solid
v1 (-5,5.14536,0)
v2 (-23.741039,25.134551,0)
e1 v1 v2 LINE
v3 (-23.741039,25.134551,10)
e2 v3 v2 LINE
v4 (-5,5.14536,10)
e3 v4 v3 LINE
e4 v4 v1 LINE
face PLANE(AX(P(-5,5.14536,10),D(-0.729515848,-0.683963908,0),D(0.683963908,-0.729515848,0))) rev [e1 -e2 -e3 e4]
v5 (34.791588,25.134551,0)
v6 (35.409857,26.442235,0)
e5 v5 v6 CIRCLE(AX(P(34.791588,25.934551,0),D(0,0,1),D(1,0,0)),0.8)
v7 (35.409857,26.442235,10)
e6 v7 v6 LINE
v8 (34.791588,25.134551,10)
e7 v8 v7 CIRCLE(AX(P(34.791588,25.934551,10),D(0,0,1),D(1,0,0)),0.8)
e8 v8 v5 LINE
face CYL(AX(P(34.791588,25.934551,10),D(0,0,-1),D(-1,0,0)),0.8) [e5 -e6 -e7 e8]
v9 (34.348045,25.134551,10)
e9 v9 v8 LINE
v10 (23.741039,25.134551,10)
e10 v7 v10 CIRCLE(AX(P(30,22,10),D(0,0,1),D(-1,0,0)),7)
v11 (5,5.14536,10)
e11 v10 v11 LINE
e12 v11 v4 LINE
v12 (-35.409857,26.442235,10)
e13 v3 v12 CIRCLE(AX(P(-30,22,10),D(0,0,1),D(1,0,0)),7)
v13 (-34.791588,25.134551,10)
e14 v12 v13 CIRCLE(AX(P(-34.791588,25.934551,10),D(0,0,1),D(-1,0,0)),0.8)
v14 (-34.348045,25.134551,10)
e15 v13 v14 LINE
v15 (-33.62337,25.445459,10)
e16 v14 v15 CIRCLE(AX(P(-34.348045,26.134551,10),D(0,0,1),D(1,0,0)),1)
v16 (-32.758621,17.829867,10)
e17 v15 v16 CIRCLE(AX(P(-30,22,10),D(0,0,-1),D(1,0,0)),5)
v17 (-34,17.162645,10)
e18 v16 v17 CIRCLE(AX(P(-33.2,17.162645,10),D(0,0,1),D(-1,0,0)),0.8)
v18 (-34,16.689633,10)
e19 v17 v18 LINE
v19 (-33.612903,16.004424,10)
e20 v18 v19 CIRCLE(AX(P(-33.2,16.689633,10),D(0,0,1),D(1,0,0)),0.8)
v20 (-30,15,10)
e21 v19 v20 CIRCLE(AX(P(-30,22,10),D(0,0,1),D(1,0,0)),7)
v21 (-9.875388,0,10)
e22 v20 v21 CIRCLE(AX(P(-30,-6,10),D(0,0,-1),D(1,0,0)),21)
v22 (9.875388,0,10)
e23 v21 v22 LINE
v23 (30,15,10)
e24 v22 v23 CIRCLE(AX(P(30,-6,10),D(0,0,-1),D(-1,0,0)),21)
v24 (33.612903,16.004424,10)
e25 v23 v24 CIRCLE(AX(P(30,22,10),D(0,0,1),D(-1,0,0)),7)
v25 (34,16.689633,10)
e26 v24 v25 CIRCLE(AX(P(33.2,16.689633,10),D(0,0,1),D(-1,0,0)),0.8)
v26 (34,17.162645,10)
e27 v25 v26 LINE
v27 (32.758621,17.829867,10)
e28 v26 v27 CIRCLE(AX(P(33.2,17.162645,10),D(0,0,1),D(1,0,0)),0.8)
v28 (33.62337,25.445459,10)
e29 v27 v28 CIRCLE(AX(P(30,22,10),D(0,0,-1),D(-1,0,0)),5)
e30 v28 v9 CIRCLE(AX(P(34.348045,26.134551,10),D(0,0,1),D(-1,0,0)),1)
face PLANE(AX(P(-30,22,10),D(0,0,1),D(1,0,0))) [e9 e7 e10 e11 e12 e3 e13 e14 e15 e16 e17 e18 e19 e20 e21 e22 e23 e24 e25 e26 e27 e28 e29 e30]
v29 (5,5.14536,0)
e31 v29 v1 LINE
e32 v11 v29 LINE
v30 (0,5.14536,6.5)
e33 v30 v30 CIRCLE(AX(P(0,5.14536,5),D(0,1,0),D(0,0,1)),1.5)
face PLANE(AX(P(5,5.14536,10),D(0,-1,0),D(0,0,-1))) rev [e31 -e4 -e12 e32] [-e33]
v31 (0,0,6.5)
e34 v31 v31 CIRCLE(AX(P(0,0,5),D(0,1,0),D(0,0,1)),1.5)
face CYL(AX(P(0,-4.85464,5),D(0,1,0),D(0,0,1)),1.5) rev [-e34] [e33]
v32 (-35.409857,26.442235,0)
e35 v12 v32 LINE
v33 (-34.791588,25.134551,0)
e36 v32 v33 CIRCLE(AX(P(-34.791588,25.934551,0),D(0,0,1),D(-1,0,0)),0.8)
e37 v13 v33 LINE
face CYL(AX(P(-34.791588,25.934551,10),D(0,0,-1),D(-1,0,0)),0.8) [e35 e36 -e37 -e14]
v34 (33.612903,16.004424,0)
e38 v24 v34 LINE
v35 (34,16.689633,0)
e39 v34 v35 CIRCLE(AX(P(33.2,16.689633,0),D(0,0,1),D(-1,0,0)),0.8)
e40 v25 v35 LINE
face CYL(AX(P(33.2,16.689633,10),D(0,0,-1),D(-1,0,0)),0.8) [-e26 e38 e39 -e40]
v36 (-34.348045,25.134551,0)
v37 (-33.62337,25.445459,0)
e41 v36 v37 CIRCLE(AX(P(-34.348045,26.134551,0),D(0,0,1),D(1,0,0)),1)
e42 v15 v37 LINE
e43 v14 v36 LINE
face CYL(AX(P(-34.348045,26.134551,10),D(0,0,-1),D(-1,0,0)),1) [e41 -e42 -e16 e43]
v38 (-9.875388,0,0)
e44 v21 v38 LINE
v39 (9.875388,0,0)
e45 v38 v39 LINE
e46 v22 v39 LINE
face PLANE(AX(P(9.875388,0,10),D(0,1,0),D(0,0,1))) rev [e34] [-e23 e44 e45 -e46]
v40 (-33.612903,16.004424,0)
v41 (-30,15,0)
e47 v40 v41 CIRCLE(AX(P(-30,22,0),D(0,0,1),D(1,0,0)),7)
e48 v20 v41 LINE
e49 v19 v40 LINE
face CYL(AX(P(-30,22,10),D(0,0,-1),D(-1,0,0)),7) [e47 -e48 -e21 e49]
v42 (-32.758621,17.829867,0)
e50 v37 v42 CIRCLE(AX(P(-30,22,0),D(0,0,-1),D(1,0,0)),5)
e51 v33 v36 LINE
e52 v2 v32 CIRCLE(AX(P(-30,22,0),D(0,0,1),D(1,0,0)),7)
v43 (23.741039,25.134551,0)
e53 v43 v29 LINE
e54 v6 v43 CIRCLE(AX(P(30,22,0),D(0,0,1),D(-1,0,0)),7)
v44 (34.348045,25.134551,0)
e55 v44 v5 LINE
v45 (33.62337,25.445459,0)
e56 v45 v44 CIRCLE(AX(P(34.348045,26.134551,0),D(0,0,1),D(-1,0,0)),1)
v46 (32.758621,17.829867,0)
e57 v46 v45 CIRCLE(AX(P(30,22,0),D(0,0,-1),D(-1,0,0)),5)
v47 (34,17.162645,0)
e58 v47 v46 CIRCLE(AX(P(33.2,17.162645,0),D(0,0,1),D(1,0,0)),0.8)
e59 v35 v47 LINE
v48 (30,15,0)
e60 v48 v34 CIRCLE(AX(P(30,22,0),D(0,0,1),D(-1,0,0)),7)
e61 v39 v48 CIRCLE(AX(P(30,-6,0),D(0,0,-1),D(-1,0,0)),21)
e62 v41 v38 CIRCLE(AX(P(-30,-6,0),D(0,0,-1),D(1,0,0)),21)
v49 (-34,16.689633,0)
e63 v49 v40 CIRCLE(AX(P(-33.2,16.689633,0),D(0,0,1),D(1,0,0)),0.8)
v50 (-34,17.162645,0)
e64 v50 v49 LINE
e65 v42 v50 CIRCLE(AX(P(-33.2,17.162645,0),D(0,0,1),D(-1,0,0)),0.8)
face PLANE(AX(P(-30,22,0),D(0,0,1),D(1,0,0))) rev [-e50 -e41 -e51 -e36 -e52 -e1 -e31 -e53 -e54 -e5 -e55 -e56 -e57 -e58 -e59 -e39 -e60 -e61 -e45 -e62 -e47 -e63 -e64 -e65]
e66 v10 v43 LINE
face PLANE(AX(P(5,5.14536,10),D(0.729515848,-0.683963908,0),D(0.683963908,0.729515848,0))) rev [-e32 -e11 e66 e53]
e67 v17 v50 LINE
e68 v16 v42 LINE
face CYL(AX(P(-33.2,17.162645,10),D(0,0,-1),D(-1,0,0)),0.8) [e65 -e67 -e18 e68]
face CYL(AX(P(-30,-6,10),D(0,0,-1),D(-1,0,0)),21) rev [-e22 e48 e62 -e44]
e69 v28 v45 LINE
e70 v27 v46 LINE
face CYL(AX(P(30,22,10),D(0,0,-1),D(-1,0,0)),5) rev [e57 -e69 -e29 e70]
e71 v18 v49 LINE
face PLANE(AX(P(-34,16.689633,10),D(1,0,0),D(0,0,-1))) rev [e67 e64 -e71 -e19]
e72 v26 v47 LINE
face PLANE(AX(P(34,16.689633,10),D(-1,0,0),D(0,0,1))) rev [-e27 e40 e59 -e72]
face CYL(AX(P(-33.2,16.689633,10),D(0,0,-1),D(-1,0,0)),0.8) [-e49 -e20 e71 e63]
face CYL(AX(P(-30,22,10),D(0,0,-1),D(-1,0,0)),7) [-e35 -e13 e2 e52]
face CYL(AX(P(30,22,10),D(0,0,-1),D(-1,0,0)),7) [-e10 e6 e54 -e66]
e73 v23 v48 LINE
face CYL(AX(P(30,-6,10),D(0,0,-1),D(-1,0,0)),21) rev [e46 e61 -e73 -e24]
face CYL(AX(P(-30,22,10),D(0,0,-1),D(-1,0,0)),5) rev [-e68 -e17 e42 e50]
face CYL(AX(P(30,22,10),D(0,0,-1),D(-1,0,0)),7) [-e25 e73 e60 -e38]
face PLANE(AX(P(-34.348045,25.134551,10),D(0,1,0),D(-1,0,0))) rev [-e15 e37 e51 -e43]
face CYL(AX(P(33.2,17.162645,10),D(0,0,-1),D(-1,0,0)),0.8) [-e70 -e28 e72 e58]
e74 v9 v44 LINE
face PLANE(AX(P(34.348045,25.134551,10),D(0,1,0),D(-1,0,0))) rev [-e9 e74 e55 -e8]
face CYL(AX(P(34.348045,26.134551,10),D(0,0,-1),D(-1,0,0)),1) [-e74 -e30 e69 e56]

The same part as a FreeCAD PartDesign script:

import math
import FreeCAD as App
import Part
import Sketcher

V = App.Vector
Q = App.Units.Quantity

doc = App.newDocument("Part")
body = doc.addObject("PartDesign::Body", "Body")

sketch1 = body.newObject("Sketcher::SketchObject", "Sketch")
sketch1.AttachmentSupport = (doc.getObject("XY_Plane"), [""])
sketch1.MapMode = "FlatFace"
sketch1.addGeometry([
    Part.LineSegment(V(-9.875388, 0, 0), V(9.875388, 0, 0)),
    Part.ArcOfCircle(Part.Circle(V(30, -6, 0), V(0, 0, 1), 21), math.radians(90), math.radians(163.39845)),
    Part.ArcOfCircle(Part.Circle(V(30, 22, 0), V(0, 0, 1), 7), math.radians(-90), math.radians(-58.927049)),
    Part.ArcOfCircle(Part.Circle(V(33.2, 16.689633, 0), V(0, 0, 1), 0.8), math.radians(-58.927049), math.radians(0)),
    Part.LineSegment(V(34, 16.689633, 0), V(34, 17.162645, 0)),
    Part.ArcOfCircle(Part.Circle(V(33.2, 17.162645, 0), V(0, 0, 1), 0.8), math.radians(0), math.radians(123.485377)),
    Part.ArcOfCircle(Part.Circle(V(30, 22, 0), V(0, 0, 1), 5), math.radians(43.558257), math.radians(303.485377)),
    Part.ArcOfCircle(Part.Circle(V(34.348045, 26.134551, 0), V(0, 0, 1), 1), math.radians(-136.441743), math.radians(-90)),
    Part.LineSegment(V(34.348045, 25.134551, 0), V(34.791588, 25.134551, 0)),
    Part.ArcOfCircle(Part.Circle(V(34.791588, 25.934551, 0), V(0, 0, 1), 0.8), math.radians(-90), math.radians(39.390689)),
    Part.ArcOfCircle(Part.Circle(V(30, 22, 0), V(0, 0, 1), 7), math.radians(39.390689), math.radians(153.397831)),
    Part.LineSegment(V(23.741039, 25.134551, 0), V(5, 5.14536, 0)),
    Part.LineSegment(V(5, 5.14536, 0), V(-5, 5.14536, 0)),
    Part.LineSegment(V(-5, 5.14536, 0), V(-23.741039, 25.134551, 0)),
    Part.ArcOfCircle(Part.Circle(V(-30, 22, 0), V(0, 0, 1), 7), math.radians(26.602169), math.radians(140.609311)),
    Part.ArcOfCircle(Part.Circle(V(-34.791588, 25.934551, 0), V(0, 0, 1), 0.8), math.radians(140.609311), math.radians(270)),
    Part.LineSegment(V(-34.791588, 25.134551, 0), V(-34.348045, 25.134551, 0)),
    Part.ArcOfCircle(Part.Circle(V(-34.348045, 26.134551, 0), V(0, 0, 1), 1), math.radians(-90), math.radians(-43.558257)),
    Part.ArcOfCircle(Part.Circle(V(-30, 22, 0), V(0, 0, 1), 5), math.radians(-123.485377), math.radians(136.441743)),
    Part.ArcOfCircle(Part.Circle(V(-33.2, 17.162645, 0), V(0, 0, 1), 0.8), math.radians(56.514623), math.radians(180)),
    Part.LineSegment(V(-34, 17.162645, 0), V(-34, 16.689633, 0)),
    Part.ArcOfCircle(Part.Circle(V(-33.2, 16.689633, 0), V(0, 0, 1), 0.8), math.radians(180), math.radians(238.927049)),
    Part.ArcOfCircle(Part.Circle(V(-30, 22, 0), V(0, 0, 1), 7), math.radians(-121.072951), math.radians(-90)),
    Part.ArcOfCircle(Part.Circle(V(-30, -6, 0), V(0, 0, 1), 21), math.radians(16.60155), math.radians(90)),
], False)
sketch1.addConstraint([
    Sketcher.Constraint("Coincident", 0, 2, 1, 2),
    Sketcher.Constraint("Tangent", 1, 1, 2, 1),
    Sketcher.Constraint("Tangent", 2, 2, 3, 1),
    Sketcher.Constraint("Tangent", 3, 2, 4, 1),
    Sketcher.Constraint("Tangent", 4, 2, 5, 1),
    Sketcher.Constraint("Tangent", 5, 2, 6, 2),
    Sketcher.Constraint("Tangent", 6, 1, 7, 1),
    Sketcher.Constraint("Tangent", 7, 2, 8, 1),
    Sketcher.Constraint("Tangent", 8, 2, 9, 1),
    Sketcher.Constraint("Tangent", 9, 2, 10, 1),
    Sketcher.Constraint("Coincident", 10, 2, 11, 1),
    Sketcher.Constraint("Coincident", 11, 2, 12, 1),
    Sketcher.Constraint("Coincident", 12, 2, 13, 1),
    Sketcher.Constraint("Coincident", 13, 2, 14, 1),
    Sketcher.Constraint("Tangent", 14, 2, 15, 1),
    Sketcher.Constraint("Tangent", 15, 2, 16, 1),
    Sketcher.Constraint("Tangent", 16, 2, 17, 1),
    Sketcher.Constraint("Tangent", 17, 2, 18, 2),
    Sketcher.Constraint("Tangent", 18, 1, 19, 1),
    Sketcher.Constraint("Tangent", 19, 2, 20, 1),
    Sketcher.Constraint("Tangent", 20, 2, 21, 1),
    Sketcher.Constraint("Tangent", 21, 2, 22, 1),
    Sketcher.Constraint("Tangent", 22, 2, 23, 2),
    Sketcher.Constraint("Coincident", 23, 1, 0, 1),
    Sketcher.Constraint("Horizontal", 0),
    Sketcher.Constraint("Vertical", 4),
    Sketcher.Constraint("Horizontal", 8),
    Sketcher.Constraint("Horizontal", 12),
    Sketcher.Constraint("Horizontal", 16),
    Sketcher.Constraint("Vertical", 20),
    Sketcher.Constraint("Coincident", 6, 3, 2, 3),
    Sketcher.Constraint("Coincident", 10, 3, 2, 3),
    Sketcher.Constraint("Coincident", 18, 3, 14, 3),
    Sketcher.Constraint("Coincident", 22, 3, 14, 3),
    Sketcher.Constraint("Equal", 3, 5),
    Sketcher.Constraint("Equal", 5, 9),
    Sketcher.Constraint("Equal", 2, 10),
    Sketcher.Constraint("Equal", 10, 14),
    Sketcher.Constraint("Equal", 9, 15),
    Sketcher.Constraint("Equal", 7, 17),
    Sketcher.Constraint("Equal", 6, 18),
    Sketcher.Constraint("Equal", 15, 19),
    Sketcher.Constraint("Equal", 19, 21),
    Sketcher.Constraint("Equal", 14, 22),
    Sketcher.Constraint("Equal", 1, 23),
    Sketcher.Constraint("Symmetric", 0, 2, 23, 1, -1, 1),
    Sketcher.Constraint("Symmetric", 2, 3, 14, 3, -2),
    Sketcher.Constraint("Horizontal", 9, 3, 15, 3),
    Sketcher.Constraint("Horizontal", 5, 3, 19, 3),
    Sketcher.Constraint("Horizontal", 8, 2, 10, 2),
    Sketcher.Constraint("Horizontal", 10, 2, 13, 2),
    Sketcher.Constraint("Vertical", 1, 3, 2, 3),
    Sketcher.Constraint("Equal", 11, 13),
    Sketcher.Constraint("Radius", 1, Q("21 mm")),
    Sketcher.Constraint("Radius", 2, Q("7 mm")),
    Sketcher.Constraint("Radius", 6, Q("5 mm")),
    Sketcher.Constraint("Radius", 7, Q("1 mm")),
    Sketcher.Constraint("Radius", 3, Q("0.8 mm")),
    Sketcher.Constraint("DistanceX", 12, 2, 12, 1, Q("10 mm")),
    Sketcher.Constraint("DistanceX", -1, 1, 1, 3, Q("30 mm")),
    Sketcher.Constraint("DistanceY", 1, 3, -1, 1, Q("6 mm")),
    Sketcher.Constraint("DistanceX", -1, 1, 3, 2, Q("34 mm")),
    Sketcher.Constraint("DistanceX", 8, 1, 8, 2, Q("0.443543 mm")),
    Sketcher.Constraint("DistanceY", -1, 1, 11, 2, Q("5.14536 mm")),
])
pad1 = body.newObject("PartDesign::Pad", "Pad")
pad1.Profile = sketch1
pad1.Length = 10

sketch2 = body.newObject("Sketcher::SketchObject", "Sketch001")
sketch2.AttachmentSupport = (doc.getObject("XZ_Plane"), [""])
sketch2.MapMode = "FlatFace"
sketch2.AttachmentOffset = App.Placement(V(0, 0, -5.14536), App.Rotation())
sketch2.addGeometry(Part.Circle(V(0, 5, 0), V(0, 0, 1), 1.5), False)
sketch2.addConstraint([
    Sketcher.Constraint("PointOnObject", 0, 3, -2),
    Sketcher.Constraint("Diameter", 0, Q("3 mm")),
    Sketcher.Constraint("DistanceY", -1, 1, 0, 3, Q("5 mm")),
])
pocket1 = body.newObject("PartDesign::Pocket", "Pocket")
pocket1.Profile = sketch2
pocket1.Length = 10
pocket1.Reversed = True

doc.recompute()
